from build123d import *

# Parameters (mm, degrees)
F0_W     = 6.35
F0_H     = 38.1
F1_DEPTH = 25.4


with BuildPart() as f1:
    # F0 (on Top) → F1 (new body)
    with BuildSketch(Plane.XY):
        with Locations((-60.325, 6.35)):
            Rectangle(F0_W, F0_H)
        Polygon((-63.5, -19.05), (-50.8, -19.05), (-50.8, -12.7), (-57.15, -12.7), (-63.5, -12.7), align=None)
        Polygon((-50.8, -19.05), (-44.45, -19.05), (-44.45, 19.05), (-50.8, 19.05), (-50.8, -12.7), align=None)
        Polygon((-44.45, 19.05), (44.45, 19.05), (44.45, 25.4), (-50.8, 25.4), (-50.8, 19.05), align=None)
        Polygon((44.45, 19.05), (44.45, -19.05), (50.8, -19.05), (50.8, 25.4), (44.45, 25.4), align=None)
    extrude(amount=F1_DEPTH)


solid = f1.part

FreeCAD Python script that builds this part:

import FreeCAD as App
import Part
import Sketcher
from FreeCAD import Vector
Q = App.Units.Quantity


def add_polygon(sketch, points):
    """Adds a closed chain of lines whose ends are joined by coincident constraints."""
    first, n = sketch.GeometryCount, len(points)
    for a, b in zip(points, points[1:] + points[:1]):
        sketch.addGeometry(Part.LineSegment(App.Vector(*a, 0), App.Vector(*b, 0)), False)
    for i in range(n):
        sketch.addConstraint(Sketcher.Constraint("Coincident", first + i, 2, first + (i + 1) % n, 1))

doc = App.newDocument("Part")
params = doc.addObject("Spreadsheet::Sheet", "Params")
for row, (alias, value) in enumerate([
    ("sketch1_width", "4 in"),
    ("sketch1_width2", "3.5 in"),
    ("sketch1_height", "1.5 in"),
    ("pad1_length", "1 in"),
], start=1):
    params.set(f"A{row}", alias)
    params.set(f"B{row}", "=" + value)
    params.setAlias(f"B{row}", alias)

body = doc.addObject("PartDesign::Body", "Body")

sketch1 = body.newObject("Sketcher::SketchObject", "Sketch")
sketch1.AttachmentSupport = (doc.getObject("XY_Plane"), [""])
sketch1.MapMode = "FlatFace"
add_polygon(sketch1, [(-64, 25), (-64, -19), (-44, -19), (-44, 19), (44, 19), (44, -19), (51, -19), (51, 25), (-51, 25), (-51, -13), (-57, -13), (-57, 25)])
sketch1.addConstraint([
    Sketcher.Constraint("Vertical", 0),
    Sketcher.Constraint("Horizontal", 1),
    Sketcher.Constraint("Vertical", 2),
    Sketcher.Constraint("Horizontal", 3),
    Sketcher.Constraint("Vertical", 4),
    Sketcher.Constraint("Horizontal", 5),
    Sketcher.Constraint("Vertical", 6),
    Sketcher.Constraint("Horizontal", 7),
    Sketcher.Constraint("Vertical", 8),
    Sketcher.Constraint("Horizontal", 9),
    Sketcher.Constraint("Vertical", 10),
    Sketcher.Constraint("Horizontal", 11),
    Sketcher.Constraint("Symmetric", 1, 2, 3, 2, -1, 1),
    Sketcher.Constraint("Horizontal", 1, 2, 4, 2),
    Sketcher.Constraint("Horizontal", 7, 2, 10, 2),
    Sketcher.Constraint("Equal", 5, 9),
    Sketcher.Constraint("Equal", 9, 11),
    Sketcher.Constraint("Equal", 4, 8),
    Sketcher.Constraint("DistanceX", 7, 2, 7, 1, Q("4 in")),
    Sketcher.Constraint("DistanceX", 3, 1, 3, 2, Q("3.5 in")),
    Sketcher.Constraint("DistanceY", 2, 1, 2, 2, Q("1.5 in")),
    Sketcher.Constraint("DistanceX", -1, 1, 5, 2, Q("2 in")),
    Sketcher.Constraint("DistanceY", -1, 1, 6, 2, Q("1 in")),
])
sketch1.setExpression("Constraints[30]", "Params.sketch1_width")
sketch1.setExpression("Constraints[31]", "Params.sketch1_width2")
sketch1.setExpression("Constraints[32]", "Params.sketch1_height")
pad1 = body.newObject("PartDesign::Pad", "Pad")
pad1.Profile = sketch1
pad1.setExpression("Length", "Params.pad1_length")

doc.recompute()
